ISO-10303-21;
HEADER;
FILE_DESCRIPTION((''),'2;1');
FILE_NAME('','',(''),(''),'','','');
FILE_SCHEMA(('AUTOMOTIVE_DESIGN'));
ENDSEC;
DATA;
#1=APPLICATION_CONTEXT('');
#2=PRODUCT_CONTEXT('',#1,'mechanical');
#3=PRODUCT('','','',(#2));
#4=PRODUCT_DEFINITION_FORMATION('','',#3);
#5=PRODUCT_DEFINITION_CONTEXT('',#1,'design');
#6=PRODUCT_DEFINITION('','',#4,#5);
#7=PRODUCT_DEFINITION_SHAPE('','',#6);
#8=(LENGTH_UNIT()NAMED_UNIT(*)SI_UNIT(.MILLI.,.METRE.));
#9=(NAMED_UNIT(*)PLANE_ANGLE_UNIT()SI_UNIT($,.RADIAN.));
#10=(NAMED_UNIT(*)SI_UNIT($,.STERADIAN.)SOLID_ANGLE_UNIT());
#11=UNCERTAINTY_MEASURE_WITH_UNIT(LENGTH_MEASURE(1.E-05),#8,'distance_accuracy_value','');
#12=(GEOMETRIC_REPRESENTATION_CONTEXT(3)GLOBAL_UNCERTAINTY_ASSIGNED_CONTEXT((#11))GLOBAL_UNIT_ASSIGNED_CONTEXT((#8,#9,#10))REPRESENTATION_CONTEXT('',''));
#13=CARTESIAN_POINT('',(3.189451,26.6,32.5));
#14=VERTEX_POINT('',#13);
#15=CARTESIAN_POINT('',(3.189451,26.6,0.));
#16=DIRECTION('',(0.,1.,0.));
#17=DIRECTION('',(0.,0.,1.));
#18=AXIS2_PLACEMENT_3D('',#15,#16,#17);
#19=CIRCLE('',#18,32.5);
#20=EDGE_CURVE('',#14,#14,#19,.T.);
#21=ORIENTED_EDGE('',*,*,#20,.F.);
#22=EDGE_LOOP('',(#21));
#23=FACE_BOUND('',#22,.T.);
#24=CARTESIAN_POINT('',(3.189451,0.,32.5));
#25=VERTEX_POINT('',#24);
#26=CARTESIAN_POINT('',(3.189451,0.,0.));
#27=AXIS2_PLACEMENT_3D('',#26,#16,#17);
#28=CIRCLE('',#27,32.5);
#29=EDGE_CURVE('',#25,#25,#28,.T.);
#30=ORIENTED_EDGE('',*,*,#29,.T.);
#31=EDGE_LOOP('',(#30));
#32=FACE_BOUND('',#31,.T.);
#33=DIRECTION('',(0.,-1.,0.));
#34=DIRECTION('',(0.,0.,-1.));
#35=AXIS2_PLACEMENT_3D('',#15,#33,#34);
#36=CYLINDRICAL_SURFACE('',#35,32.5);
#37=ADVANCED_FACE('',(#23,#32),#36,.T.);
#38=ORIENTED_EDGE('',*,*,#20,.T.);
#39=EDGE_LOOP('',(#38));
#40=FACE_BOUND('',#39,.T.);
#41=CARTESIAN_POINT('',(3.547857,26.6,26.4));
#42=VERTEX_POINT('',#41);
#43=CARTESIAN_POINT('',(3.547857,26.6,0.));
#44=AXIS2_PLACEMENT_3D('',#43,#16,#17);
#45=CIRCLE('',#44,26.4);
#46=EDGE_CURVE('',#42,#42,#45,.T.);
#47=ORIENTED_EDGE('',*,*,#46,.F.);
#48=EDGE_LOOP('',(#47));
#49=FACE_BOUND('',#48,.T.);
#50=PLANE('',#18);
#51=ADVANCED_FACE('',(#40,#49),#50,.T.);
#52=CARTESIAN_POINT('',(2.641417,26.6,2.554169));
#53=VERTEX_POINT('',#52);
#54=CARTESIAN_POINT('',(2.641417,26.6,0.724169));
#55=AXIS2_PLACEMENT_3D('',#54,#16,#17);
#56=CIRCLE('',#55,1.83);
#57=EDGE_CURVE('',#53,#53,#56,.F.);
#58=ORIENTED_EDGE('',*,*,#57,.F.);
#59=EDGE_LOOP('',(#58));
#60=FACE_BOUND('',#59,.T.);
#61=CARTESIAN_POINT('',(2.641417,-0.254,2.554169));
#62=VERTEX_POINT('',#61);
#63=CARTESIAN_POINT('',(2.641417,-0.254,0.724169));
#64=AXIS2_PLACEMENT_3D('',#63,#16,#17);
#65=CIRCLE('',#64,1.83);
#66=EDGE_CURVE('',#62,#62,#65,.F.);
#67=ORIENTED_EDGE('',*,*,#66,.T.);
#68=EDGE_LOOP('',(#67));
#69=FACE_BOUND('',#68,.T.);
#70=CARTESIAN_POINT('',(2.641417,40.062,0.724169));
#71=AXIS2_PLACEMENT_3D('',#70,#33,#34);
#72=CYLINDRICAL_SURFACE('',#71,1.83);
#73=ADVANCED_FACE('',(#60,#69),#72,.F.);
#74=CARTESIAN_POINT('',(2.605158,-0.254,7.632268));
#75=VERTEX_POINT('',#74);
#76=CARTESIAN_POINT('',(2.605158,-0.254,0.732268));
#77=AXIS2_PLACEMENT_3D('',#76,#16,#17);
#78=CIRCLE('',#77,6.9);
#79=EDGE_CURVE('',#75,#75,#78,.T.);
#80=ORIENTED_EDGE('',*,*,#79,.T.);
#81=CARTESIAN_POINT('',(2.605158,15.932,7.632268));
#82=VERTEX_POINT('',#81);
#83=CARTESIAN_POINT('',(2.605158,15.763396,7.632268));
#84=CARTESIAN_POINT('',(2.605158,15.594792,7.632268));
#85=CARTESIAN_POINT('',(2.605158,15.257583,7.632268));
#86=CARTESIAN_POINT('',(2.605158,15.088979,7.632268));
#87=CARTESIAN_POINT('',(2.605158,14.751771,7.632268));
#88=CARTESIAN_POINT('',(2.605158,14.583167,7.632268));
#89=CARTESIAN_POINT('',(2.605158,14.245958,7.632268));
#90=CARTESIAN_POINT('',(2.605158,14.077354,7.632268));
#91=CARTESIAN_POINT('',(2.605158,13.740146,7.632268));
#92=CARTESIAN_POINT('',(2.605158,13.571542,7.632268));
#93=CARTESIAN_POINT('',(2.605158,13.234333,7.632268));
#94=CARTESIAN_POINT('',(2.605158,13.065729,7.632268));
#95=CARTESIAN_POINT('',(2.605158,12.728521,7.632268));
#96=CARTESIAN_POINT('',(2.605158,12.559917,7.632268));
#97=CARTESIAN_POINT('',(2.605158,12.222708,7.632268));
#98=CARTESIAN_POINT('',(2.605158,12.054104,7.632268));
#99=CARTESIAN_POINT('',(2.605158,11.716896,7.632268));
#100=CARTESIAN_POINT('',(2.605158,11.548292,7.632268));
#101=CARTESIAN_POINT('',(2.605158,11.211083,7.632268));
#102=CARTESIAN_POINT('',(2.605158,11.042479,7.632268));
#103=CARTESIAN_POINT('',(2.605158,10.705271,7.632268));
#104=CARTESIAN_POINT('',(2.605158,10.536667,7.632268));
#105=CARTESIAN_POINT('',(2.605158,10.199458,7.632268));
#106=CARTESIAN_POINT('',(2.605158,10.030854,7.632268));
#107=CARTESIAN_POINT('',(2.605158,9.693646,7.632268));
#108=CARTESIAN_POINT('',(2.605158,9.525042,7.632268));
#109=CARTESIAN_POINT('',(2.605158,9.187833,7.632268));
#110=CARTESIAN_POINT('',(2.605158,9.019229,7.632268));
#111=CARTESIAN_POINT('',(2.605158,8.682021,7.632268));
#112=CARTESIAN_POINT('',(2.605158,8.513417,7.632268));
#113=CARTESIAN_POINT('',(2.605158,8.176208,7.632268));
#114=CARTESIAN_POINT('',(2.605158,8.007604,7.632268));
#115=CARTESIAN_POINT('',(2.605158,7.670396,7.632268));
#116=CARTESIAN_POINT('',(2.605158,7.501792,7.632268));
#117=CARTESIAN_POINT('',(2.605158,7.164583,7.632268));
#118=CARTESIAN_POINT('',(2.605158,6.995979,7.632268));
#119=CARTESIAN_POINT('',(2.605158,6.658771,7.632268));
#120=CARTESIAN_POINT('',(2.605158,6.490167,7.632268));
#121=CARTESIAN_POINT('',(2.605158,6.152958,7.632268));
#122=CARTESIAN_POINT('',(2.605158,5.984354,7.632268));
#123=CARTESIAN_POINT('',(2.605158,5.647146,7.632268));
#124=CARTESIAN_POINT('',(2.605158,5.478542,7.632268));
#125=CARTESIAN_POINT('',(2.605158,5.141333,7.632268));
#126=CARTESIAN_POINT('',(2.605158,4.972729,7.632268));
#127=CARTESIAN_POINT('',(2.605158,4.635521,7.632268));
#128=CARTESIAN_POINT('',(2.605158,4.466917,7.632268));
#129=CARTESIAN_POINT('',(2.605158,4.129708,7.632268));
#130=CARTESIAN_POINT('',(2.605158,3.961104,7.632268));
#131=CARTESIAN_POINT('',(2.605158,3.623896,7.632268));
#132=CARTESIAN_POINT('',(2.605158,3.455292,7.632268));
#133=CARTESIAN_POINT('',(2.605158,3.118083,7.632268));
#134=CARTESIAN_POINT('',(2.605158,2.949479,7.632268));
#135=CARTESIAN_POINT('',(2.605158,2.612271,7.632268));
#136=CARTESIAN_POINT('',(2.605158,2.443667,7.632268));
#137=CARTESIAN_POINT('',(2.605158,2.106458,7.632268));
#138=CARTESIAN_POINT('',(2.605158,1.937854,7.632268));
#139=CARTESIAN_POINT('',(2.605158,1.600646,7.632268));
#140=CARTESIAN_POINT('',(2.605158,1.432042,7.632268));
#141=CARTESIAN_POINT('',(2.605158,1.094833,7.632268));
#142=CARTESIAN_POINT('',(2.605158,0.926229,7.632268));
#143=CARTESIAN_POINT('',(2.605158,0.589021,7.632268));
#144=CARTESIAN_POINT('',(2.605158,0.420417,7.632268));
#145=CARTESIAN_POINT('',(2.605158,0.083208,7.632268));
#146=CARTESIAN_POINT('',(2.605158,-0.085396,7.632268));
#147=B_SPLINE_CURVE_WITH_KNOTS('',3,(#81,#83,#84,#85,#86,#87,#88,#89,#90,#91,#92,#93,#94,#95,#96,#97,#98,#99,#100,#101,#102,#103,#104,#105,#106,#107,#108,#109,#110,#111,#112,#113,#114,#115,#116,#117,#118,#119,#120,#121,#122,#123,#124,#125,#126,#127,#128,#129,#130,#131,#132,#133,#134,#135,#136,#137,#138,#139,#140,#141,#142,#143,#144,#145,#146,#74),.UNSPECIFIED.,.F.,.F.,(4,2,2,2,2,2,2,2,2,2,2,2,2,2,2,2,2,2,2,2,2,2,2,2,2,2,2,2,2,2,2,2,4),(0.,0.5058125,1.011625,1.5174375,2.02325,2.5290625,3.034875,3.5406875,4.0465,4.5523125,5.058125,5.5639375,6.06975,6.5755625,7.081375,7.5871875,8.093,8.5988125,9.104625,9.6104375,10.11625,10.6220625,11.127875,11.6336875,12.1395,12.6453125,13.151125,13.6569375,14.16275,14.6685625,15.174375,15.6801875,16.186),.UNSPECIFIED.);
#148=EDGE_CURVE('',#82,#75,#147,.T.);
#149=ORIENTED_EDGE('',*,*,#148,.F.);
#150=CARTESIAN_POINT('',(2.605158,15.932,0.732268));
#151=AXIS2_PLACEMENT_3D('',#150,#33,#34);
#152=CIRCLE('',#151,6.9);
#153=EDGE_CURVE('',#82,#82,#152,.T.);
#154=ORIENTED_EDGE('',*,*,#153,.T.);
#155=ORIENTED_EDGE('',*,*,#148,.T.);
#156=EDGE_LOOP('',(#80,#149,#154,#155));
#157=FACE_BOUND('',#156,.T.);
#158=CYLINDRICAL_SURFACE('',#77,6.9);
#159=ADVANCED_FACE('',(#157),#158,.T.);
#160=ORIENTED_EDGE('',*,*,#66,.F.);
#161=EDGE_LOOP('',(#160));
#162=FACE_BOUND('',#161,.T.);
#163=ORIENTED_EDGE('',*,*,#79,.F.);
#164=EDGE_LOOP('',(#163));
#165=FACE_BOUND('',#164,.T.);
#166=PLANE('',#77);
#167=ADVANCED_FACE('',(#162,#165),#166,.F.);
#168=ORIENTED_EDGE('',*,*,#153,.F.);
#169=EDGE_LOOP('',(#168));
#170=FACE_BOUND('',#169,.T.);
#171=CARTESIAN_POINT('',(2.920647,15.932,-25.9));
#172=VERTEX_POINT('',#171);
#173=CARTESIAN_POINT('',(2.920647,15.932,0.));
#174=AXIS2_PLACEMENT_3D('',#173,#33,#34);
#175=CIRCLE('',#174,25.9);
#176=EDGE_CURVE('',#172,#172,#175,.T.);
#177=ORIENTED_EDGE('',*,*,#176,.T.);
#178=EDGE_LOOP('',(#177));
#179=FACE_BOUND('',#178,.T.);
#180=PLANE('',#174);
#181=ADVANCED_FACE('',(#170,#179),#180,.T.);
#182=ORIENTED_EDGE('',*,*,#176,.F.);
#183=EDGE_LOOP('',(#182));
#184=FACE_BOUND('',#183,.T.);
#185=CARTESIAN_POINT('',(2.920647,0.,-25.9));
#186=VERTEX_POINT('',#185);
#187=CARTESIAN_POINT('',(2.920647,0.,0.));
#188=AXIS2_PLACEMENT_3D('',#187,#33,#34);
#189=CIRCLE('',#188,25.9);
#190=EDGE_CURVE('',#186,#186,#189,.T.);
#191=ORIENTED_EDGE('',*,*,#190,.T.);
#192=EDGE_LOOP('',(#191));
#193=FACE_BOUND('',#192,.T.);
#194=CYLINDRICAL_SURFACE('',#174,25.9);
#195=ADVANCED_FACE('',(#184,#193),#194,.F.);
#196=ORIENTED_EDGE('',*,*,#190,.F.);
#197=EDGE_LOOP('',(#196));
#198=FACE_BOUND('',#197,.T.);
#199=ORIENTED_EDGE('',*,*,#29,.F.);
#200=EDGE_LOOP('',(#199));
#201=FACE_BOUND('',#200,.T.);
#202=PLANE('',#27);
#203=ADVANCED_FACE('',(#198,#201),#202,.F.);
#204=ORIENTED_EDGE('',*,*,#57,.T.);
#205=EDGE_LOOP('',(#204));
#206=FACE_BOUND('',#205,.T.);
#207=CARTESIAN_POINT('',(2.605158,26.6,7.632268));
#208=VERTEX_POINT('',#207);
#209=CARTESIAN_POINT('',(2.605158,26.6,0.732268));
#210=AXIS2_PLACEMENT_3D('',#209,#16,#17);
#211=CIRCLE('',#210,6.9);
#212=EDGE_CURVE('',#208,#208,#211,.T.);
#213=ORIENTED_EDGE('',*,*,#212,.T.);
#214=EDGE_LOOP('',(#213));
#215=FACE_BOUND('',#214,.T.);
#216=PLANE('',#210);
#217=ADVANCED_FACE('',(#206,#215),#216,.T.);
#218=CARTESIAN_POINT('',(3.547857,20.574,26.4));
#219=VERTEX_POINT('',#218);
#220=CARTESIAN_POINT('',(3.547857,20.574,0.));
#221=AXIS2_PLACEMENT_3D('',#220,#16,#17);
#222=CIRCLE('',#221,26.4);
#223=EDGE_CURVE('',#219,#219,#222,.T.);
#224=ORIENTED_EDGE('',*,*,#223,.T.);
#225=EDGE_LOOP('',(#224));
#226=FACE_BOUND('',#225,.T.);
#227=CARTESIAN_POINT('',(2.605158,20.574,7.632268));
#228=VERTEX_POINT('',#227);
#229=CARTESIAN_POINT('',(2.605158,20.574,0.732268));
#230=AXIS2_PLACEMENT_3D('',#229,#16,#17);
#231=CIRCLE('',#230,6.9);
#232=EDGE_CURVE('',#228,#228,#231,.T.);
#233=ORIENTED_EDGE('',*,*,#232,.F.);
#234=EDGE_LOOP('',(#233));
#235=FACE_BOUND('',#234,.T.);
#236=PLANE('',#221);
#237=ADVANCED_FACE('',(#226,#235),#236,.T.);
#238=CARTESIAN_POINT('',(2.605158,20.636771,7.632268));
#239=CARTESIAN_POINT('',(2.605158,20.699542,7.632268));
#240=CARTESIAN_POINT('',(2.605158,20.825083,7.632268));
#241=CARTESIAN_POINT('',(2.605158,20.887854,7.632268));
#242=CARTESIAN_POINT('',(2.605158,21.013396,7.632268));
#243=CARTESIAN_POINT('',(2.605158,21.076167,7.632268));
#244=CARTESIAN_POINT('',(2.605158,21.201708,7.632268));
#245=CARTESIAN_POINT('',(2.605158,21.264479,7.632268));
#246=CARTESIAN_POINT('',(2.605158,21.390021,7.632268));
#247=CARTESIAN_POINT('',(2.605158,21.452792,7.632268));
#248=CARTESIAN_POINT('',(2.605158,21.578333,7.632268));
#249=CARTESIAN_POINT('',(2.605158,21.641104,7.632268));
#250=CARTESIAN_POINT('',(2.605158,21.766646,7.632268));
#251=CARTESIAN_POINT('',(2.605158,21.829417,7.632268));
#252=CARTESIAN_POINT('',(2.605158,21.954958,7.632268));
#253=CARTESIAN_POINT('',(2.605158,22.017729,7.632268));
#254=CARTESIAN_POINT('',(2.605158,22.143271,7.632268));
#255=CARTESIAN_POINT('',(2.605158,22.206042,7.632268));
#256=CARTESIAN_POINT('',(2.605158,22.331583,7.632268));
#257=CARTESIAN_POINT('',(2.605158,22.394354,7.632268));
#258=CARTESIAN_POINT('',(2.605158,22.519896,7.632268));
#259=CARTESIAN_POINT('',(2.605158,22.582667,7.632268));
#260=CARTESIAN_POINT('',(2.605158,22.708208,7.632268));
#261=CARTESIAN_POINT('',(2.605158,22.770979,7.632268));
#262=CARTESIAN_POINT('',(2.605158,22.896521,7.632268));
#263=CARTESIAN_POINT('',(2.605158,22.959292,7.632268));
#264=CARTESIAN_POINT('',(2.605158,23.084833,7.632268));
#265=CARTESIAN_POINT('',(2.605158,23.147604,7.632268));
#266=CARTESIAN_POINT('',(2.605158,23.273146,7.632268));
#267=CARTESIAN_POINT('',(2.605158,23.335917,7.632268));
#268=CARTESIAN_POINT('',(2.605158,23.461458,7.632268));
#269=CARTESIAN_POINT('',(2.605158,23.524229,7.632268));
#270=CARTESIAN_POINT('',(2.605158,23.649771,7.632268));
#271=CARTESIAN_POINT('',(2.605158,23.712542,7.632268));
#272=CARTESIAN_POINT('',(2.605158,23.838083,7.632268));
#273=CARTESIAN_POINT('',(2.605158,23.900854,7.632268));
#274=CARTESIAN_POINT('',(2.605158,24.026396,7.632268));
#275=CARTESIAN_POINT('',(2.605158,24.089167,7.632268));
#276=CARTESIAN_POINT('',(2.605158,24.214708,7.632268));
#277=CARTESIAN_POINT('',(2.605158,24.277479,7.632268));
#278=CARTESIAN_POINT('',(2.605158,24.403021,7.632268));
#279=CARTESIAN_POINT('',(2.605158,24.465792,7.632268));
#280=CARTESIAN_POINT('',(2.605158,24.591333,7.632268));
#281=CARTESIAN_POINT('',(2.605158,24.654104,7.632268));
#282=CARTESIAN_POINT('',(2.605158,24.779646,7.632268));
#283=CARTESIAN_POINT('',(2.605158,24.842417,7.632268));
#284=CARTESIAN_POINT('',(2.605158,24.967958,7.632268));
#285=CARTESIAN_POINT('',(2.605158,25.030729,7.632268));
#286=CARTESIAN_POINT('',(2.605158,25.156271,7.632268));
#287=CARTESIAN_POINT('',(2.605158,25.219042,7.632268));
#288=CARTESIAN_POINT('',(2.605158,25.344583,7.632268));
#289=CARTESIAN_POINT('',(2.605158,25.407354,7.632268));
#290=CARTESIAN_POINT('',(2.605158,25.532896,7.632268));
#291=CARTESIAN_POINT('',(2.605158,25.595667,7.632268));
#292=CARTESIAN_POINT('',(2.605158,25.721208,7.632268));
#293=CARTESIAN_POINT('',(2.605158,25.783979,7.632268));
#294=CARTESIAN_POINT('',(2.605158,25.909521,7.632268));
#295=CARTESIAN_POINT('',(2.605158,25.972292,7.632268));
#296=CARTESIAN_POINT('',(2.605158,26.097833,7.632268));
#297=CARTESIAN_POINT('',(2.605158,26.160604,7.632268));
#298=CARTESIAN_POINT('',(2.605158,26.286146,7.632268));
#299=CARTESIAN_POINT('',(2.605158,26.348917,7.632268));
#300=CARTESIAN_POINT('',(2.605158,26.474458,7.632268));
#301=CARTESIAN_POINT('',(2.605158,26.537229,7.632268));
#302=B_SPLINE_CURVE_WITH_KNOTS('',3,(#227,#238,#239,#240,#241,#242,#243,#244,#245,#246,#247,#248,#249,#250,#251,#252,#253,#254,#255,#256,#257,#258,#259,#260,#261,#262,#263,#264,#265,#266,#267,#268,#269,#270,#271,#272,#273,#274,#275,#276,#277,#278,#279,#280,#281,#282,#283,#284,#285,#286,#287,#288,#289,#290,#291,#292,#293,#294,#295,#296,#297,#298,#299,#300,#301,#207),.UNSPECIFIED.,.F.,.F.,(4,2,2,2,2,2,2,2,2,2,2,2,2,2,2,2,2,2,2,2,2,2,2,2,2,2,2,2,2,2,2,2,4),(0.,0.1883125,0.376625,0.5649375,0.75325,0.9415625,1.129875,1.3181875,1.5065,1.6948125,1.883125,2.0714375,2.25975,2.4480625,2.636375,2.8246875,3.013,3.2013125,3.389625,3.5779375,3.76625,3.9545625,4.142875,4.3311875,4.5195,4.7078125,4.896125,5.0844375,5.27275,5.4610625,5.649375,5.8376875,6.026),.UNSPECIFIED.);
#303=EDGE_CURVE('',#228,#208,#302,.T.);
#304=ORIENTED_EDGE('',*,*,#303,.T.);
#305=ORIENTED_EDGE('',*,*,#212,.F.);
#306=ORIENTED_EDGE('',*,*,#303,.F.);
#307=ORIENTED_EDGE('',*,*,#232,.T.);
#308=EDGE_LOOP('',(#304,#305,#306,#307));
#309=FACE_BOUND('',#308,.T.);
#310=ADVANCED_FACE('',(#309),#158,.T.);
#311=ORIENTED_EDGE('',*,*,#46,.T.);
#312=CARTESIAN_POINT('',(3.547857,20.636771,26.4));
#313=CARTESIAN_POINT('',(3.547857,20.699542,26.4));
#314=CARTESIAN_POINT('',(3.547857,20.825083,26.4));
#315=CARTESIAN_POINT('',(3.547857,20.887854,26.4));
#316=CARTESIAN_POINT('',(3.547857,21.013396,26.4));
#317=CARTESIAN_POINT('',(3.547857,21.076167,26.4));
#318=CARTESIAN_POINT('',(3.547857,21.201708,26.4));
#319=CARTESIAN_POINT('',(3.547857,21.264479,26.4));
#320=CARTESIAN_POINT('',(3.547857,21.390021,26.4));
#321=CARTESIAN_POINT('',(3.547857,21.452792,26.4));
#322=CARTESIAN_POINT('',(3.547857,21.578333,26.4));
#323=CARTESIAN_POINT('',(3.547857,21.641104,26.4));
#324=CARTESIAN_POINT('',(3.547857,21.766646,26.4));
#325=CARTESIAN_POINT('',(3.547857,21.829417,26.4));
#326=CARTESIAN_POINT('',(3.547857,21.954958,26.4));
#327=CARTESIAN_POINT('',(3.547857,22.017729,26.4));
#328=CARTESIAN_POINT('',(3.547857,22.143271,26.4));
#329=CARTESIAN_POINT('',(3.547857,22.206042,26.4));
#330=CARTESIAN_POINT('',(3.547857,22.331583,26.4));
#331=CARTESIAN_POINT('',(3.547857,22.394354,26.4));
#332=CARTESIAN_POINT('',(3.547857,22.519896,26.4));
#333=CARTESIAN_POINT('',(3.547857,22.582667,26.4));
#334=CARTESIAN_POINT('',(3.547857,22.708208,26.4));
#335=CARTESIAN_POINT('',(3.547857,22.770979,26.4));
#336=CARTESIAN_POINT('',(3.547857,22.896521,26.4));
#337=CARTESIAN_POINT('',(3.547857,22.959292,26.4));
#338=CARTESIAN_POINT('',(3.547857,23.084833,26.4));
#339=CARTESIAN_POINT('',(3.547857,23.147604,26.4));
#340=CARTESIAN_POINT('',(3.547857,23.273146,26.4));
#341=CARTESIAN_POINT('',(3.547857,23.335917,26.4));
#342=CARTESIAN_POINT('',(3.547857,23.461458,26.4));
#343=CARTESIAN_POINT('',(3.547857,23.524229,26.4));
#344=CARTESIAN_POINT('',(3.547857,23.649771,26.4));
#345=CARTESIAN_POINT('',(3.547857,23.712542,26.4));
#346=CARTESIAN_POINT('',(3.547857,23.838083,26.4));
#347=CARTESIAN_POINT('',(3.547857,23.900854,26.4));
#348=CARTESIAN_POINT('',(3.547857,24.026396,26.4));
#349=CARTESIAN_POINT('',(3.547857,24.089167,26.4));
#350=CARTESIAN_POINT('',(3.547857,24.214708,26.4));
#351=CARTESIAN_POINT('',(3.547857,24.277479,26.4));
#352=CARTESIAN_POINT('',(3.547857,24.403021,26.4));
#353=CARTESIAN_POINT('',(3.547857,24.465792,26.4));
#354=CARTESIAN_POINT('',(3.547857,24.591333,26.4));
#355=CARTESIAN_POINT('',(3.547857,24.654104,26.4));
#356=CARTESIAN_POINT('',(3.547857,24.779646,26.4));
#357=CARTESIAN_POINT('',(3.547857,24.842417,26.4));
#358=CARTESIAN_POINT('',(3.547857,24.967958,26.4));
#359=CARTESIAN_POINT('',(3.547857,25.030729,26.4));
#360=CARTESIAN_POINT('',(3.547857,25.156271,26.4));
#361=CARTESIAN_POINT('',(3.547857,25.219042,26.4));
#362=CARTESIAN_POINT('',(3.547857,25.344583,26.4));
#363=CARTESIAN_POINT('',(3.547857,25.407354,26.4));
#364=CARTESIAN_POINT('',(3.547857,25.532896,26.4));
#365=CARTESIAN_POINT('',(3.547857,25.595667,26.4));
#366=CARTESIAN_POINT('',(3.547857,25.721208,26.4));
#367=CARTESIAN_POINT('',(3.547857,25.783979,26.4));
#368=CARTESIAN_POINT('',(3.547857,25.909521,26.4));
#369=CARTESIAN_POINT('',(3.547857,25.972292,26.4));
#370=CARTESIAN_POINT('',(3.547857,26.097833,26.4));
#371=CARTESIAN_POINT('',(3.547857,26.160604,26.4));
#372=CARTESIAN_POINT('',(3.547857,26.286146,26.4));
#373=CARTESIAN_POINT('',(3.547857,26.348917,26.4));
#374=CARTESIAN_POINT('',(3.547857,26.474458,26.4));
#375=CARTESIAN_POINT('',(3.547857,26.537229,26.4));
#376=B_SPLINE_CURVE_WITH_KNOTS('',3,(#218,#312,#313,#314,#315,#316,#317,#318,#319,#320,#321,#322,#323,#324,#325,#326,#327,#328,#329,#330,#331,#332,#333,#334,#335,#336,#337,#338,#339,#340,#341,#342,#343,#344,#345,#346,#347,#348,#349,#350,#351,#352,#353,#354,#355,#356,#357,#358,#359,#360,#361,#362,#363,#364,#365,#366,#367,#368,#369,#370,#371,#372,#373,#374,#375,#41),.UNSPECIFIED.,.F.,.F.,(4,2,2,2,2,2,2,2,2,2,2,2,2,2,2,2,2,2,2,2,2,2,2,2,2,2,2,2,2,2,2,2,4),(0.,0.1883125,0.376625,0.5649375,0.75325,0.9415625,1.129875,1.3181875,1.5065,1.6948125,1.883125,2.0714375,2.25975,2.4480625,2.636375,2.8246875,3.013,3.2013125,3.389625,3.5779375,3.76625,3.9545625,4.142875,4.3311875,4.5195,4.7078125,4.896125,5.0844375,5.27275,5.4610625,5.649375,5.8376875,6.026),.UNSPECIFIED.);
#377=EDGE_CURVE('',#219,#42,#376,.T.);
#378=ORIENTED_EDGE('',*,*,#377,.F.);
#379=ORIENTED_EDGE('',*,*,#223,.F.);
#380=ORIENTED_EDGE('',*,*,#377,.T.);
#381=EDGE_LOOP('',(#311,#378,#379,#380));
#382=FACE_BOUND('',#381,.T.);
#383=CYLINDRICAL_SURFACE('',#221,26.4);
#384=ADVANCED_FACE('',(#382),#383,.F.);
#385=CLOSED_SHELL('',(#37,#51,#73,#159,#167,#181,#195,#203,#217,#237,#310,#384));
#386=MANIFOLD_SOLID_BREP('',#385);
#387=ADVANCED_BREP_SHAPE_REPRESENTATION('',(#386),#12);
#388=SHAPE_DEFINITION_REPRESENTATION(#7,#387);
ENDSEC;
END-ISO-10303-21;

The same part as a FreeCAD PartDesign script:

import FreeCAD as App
import Part
import Sketcher
from FreeCAD import Vector
Q = App.Units.Quantity

doc = App.newDocument("Part")
body = doc.addObject("PartDesign::Body", "Body")

# Sketch on XZ plane
sketch1 = body.newObject("Sketcher::SketchObject", "Sketch")
sketch1.AttachmentSupport = (doc.getObject("XZ_Plane"), [""])
sketch1.MapMode = "FlatFace"
sketch1.addGeometry(Part.Circle(Vector(3, 0, 0), Vector(0, 0, 1), 32), False)
sketch1.addConstraint(Sketcher.Constraint("PointOnObject", 0, 3, -1))
sketch1.addConstraint(Sketcher.Constraint("Diameter", 0, Q("65 mm")))
sketch1.addConstraint(Sketcher.Constraint("DistanceX", -1, 1, 0, 3, Q("3.189451 mm")))
pad1 = body.newObject("PartDesign::Pad", "Pad")
pad1.Profile = sketch1
pad1.Length = 26.6
pad1.Reversed = True

# Sketch on XZ plane
sketch2 = body.newObject("Sketcher::SketchObject", "Sketch001")
sketch2.AttachmentSupport = (doc.getObject("XZ_Plane"), [""])
sketch2.MapMode = "FlatFace"
sketch2.AttachmentOffset = App.Placement(Vector(0, 0, -26.6), App.Rotation())
sketch2.addGeometry(Part.Circle(Vector(4, 0, 0), Vector(0, 0, 1), 26), False)
sketch2.addConstraint(Sketcher.Constraint("PointOnObject", 0, 3, -1))
sketch2.addConstraint(Sketcher.Constraint("Diameter", 0, Q("52.8 mm")))
sketch2.addConstraint(Sketcher.Constraint("DistanceX", -1, 1, 0, 3, Q("3.547857 mm")))
pocket1 = body.newObject("PartDesign::Pocket", "Pocket")
pocket1.Profile = sketch2
pocket1.Length = 6.026
pocket1.Reversed = True

# Sketch on XZ plane
sketch3 = body.newObject("Sketcher::SketchObject", "Sketch002")
sketch3.AttachmentSupport = (doc.getObject("XZ_Plane"), [""])
sketch3.MapMode = "FlatFace"
sketch3.addGeometry(Part.Circle(Vector(3, 0, 0), Vector(0, 0, 1), 26), False)
sketch3.addConstraint(Sketcher.Constraint("PointOnObject", 0, 3, -1))
sketch3.addConstraint(Sketcher.Constraint("Diameter", 0, Q("51.8 mm")))
sketch3.addConstraint(Sketcher.Constraint("DistanceX", -1, 1, 0, 3, Q("2.920647 mm")))
pocket2 = body.newObject("PartDesign::Pocket", "Pocket001")
pocket2.Profile = sketch3
pocket2.Length = 15.932

# Sketch on XZ plane
sketch4 = body.newObject("Sketcher::SketchObject", "Sketch003")
sketch4.AttachmentSupport = (doc.getObject("XZ_Plane"), [""])
sketch4.MapMode = "FlatFace"
sketch4.AttachmentOffset = App.Placement(Vector(0, 0, -20.574), App.Rotation())
sketch4.addGeometry(Part.Circle(Vector(3, 1, 0), Vector(0, 0, 1), 7), False)
sketch4.addConstraint(Sketcher.Constraint("Diameter", 0, Q("13.8 mm")))
sketch4.addConstraint(Sketcher.Constraint("DistanceX", -1, 1, 0, 3, Q("2.605158 mm")))
sketch4.addConstraint(Sketcher.Constraint("DistanceY", -1, 1, 0, 3, Q("0.732268 mm")))
pad2 = body.newObject("PartDesign::Pad", "Pad001")
pad2.Profile = sketch4
pad2.Type = "TwoLengths"
pad2.Length = 6.026
pad2.Length2 = 20.828
pad2.Reversed = True

# Sketch on XZ plane
sketch5 = body.newObject("Sketcher::SketchObject", "Sketch004")
sketch5.AttachmentSupport = (doc.getObject("XZ_Plane"), [""])
sketch5.MapMode = "FlatFace"
sketch5.AttachmentOffset = App.Placement(Vector(0, 0, -26.6), App.Rotation())
sketch5.addGeometry(Part.Circle(Vector(2.6, 0.7, 0), Vector(0, 0, 1), 1.8), False)
sketch5.addConstraint(Sketcher.Constraint("Diameter", 0, Q("3.66 mm")))
sketch5.addConstraint(Sketcher.Constraint("DistanceY", -1, 1, 0, 3, Q("0.724169 mm")))
sketch5.addConstraint(Sketcher.Constraint("DistanceX", -1, 1, 0, 3, Q("2.641417 mm")))
pocket3 = body.newObject("PartDesign::Pocket", "Pocket002")
pocket3.Profile = sketch5
pocket3.Type = "ThroughAll"
pocket3.Midplane = True

doc.recompute()
